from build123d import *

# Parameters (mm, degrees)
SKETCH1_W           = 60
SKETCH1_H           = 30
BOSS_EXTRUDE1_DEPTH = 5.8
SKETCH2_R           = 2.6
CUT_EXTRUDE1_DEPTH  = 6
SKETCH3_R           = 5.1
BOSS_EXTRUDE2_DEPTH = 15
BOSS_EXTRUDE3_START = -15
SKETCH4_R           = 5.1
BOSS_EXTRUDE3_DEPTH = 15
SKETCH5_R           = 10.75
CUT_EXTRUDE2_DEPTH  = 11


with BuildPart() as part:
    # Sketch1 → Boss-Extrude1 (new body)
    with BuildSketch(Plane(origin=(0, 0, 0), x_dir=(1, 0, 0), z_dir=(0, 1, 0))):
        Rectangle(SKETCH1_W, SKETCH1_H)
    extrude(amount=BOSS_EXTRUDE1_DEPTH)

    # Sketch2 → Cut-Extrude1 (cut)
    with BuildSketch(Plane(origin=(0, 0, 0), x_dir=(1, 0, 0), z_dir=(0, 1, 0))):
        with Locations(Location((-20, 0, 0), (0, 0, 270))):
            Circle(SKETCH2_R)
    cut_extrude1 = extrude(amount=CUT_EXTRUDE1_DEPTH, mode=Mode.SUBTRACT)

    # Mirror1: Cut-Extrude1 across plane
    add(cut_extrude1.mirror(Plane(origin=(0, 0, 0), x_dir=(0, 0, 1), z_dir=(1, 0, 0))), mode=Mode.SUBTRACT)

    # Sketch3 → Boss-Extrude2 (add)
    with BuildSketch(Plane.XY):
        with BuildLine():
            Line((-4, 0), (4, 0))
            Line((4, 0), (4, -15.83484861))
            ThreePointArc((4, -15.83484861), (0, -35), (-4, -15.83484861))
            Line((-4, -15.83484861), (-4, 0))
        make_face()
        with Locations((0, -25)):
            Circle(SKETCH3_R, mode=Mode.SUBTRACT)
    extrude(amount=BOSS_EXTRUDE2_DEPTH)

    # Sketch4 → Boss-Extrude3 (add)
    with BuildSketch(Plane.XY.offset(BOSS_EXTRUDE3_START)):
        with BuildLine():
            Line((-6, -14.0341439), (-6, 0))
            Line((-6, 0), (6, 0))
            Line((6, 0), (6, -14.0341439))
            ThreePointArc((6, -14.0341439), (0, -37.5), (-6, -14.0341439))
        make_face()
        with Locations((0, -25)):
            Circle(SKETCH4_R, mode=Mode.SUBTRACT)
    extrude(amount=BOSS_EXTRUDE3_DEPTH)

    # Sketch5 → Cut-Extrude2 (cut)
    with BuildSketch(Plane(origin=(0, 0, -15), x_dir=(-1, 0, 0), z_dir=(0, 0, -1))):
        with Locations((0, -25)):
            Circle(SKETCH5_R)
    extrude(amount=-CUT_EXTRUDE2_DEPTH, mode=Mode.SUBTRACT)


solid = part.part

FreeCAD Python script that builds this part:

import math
import FreeCAD as App
import Part
import Sketcher
Q = App.Units.Quantity


def add_polygon(sketch, points):
    """Adds a closed chain of lines whose ends are joined by coincident constraints."""
    first, n = sketch.GeometryCount, len(points)
    for a, b in zip(points, points[1:] + points[:1]):
        sketch.addGeometry(Part.LineSegment(App.Vector(*a, 0), App.Vector(*b, 0)), False)
    for i in range(n):
        sketch.addConstraint(Sketcher.Constraint("Coincident", first + i, 2, first + (i + 1) % n, 1))

doc = App.newDocument("Part")
body = doc.addObject("PartDesign::Body", "Body")

# Sketch on XZ plane
sketch1 = doc.addObject("Sketcher::SketchObject", "Sketch")
body.addObject(sketch1)
sketch1.AttachmentSupport = (doc.XZ_Plane, [""])
sketch1.MapMode = "FlatFace"
add_polygon(sketch1, [(-30, -15), (-30, 15), (30, 15), (30, -15)])  # lines 0-3
sketch1.addConstraint(Sketcher.Constraint("Vertical", 0))
sketch1.addConstraint(Sketcher.Constraint("Horizontal", 1))
sketch1.addConstraint(Sketcher.Constraint("Vertical", 2))
sketch1.addConstraint(Sketcher.Constraint("Horizontal", 3))
sketch1.addConstraint(Sketcher.Constraint("Symmetric", 0, 2, 2, 2, -1, 1))
sketch1.addConstraint(Sketcher.Constraint("DistanceX", 1, 1, 1, 2, Q("60 mm")))
sketch1.addConstraint(Sketcher.Constraint("DistanceY", 0, 1, 0, 2, Q("30 mm")))
pad1 = doc.addObject("PartDesign::Pad", "Pad")
body.addObject(pad1)
pad1.Profile = sketch1
pad1.Length = 5.8
pad1.Reversed = True

# Sketch on XZ plane
sketch2 = doc.addObject("Sketcher::SketchObject", "Sketch001")
body.addObject(sketch2)
sketch2.AttachmentSupport = (doc.XZ_Plane, [""])
sketch2.MapMode = "FlatFace"
sketch2.addGeometry(Part.Circle(App.Vector(-20, 0, 0), App.Vector(0, 0, 1), 2.6), False)
sketch2.addConstraint(Sketcher.Constraint("PointOnObject", 0, 3, -1))
sketch2.addConstraint(Sketcher.Constraint("Diameter", 0, Q("5.2 mm")))
sketch2.addConstraint(Sketcher.Constraint("DistanceX", 0, 3, -1, 1, Q("20 mm")))
pocket1 = doc.addObject("PartDesign::Pocket", "Pocket")
body.addObject(pocket1)
pocket1.Profile = sketch2
pocket1.Length = 6
doc.recompute()

mirrored = doc.addObject("PartDesign::Mirrored", "Mirrored")
body.addObject(mirrored)
mirrored.Originals = [pocket1]
mirrored.MirrorPlane = (doc.YZ_Plane, [""])
body.Tip = mirrored

# Sketch on XY plane
sketch3 = doc.addObject("Sketcher::SketchObject", "Sketch002")
body.addObject(sketch3)
sketch3.AttachmentSupport = (doc.XY_Plane, [""])
sketch3.MapMode = "FlatFace"
sketch3.addGeometry(Part.LineSegment(App.Vector(4, 0, 0), App.Vector(-4, 0, 0)), False)
sketch3.addGeometry(Part.LineSegment(App.Vector(-4, 0, 0), App.Vector(-4, -16, 0)), False)
sketch3.addGeometry(Part.ArcOfCircle(Part.Circle(App.Vector(0, -25, 0), App.Vector(0, 0, 1), 10), math.radians(114), math.radians(426)), False)
sketch3.addGeometry(Part.LineSegment(App.Vector(4, -16, 0), App.Vector(4, 0, 0)), False)
sketch3.addGeometry(Part.Circle(App.Vector(0, -25, 0), App.Vector(0, 0, 1), 5), False)
sketch3.addConstraint(Sketcher.Constraint("Coincident", 0, 2, 1, 1))
sketch3.addConstraint(Sketcher.Constraint("Coincident", 1, 2, 2, 1))
sketch3.addConstraint(Sketcher.Constraint("Coincident", 2, 2, 3, 1))
sketch3.addConstraint(Sketcher.Constraint("Coincident", 3, 2, 0, 1))
sketch3.addConstraint(Sketcher.Constraint("Horizontal", 0))
sketch3.addConstraint(Sketcher.Constraint("Vertical", 1))
sketch3.addConstraint(Sketcher.Constraint("Vertical", 3))
sketch3.addConstraint(Sketcher.Constraint("Coincident", 4, 3, 2, 3))
sketch3.addConstraint(Sketcher.Constraint("Symmetric", 0, 2, 3, 2, -1, 1))
sketch3.addConstraint(Sketcher.Constraint("PointOnObject", 2, 3, -2))
sketch3.addConstraint(Sketcher.Constraint("Radius", 2, Q("10 mm")))
sketch3.addConstraint(Sketcher.Constraint("Diameter", 4, Q("10.2 mm")))
sketch3.addConstraint(Sketcher.Constraint("DistanceX", 0, 2, 0, 1, Q("8 mm")))
sketch3.addConstraint(Sketcher.Constraint("DistanceY", 2, 3, -1, 1, Q("25 mm")))
pad2 = doc.addObject("PartDesign::Pad", "Pad001")
body.addObject(pad2)
pad2.Profile = sketch3
pad2.Length = 15

# Sketch on XY plane
sketch4 = doc.addObject("Sketcher::SketchObject", "Sketch003")
body.addObject(sketch4)
sketch4.AttachmentSupport = (doc.XY_Plane, [""])
sketch4.MapMode = "FlatFace"
sketch4.AttachmentOffset = App.Placement(App.Vector(0, 0, -15), App.Rotation())
sketch4.addGeometry(Part.LineSegment(App.Vector(-6, 0, 0), App.Vector(-6, -14, 0)), False)
sketch4.addGeometry(Part.ArcOfCircle(Part.Circle(App.Vector(0, -25, 0), App.Vector(0, 0, 1), 12), math.radians(119), math.radians(421)), False)
sketch4.addGeometry(Part.LineSegment(App.Vector(6, -14, 0), App.Vector(6, 0, 0)), False)
sketch4.addGeometry(Part.LineSegment(App.Vector(6, 0, 0), App.Vector(-6, 0, 0)), False)
sketch4.addGeometry(Part.Circle(App.Vector(0, -25, 0), App.Vector(0, 0, 1), 5), False)
sketch4.addConstraint(Sketcher.Constraint("Coincident", 0, 2, 1, 1))
sketch4.addConstraint(Sketcher.Constraint("Coincident", 1, 2, 2, 1))
sketch4.addConstraint(Sketcher.Constraint("Coincident", 2, 2, 3, 1))
sketch4.addConstraint(Sketcher.Constraint("Coincident", 3, 2, 0, 1))
sketch4.addConstraint(Sketcher.Constraint("Vertical", 0))
sketch4.addConstraint(Sketcher.Constraint("Vertical", 2))
sketch4.addConstraint(Sketcher.Constraint("Horizontal", 3))
sketch4.addConstraint(Sketcher.Constraint("Coincident", 4, 3, 1, 3))
sketch4.addConstraint(Sketcher.Constraint("Symmetric", 2, 2, 3, 2, -1, 1))
sketch4.addConstraint(Sketcher.Constraint("PointOnObject", 1, 3, -2))
sketch4.addConstraint(Sketcher.Constraint("Diameter", 4, Q("10.2 mm")))
sketch4.addConstraint(Sketcher.Constraint("Radius", 1, Q("12.5 mm")))
sketch4.addConstraint(Sketcher.Constraint("DistanceX", 3, 2, 3, 1, Q("12 mm")))
sketch4.addConstraint(Sketcher.Constraint("DistanceY", 1, 3, -1, 1, Q("25 mm")))
pad3 = doc.addObject("PartDesign::Pad", "Pad002")
body.addObject(pad3)
pad3.Profile = sketch4
pad3.Length = 15

# Sketch on XY plane
sketch5 = doc.addObject("Sketcher::SketchObject", "Sketch004")
body.addObject(sketch5)
sketch5.AttachmentSupport = (doc.XY_Plane, [""])
sketch5.MapMode = "FlatFace"
sketch5.AttachmentOffset = App.Placement(App.Vector(0, 0, -15), App.Rotation())
sketch5.addGeometry(Part.Circle(App.Vector(0, -25, 0), App.Vector(0, 0, 1), 11), False)
sketch5.addConstraint(Sketcher.Constraint("PointOnObject", 0, 3, -2))
sketch5.addConstraint(Sketcher.Constraint("Diameter", 0, Q("21.5 mm")))
sketch5.addConstraint(Sketcher.Constraint("DistanceY", 0, 3, -1, 1, Q("25 mm")))
pocket2 = doc.addObject("PartDesign::Pocket", "Pocket001")
body.addObject(pocket2)
pocket2.Profile = sketch5
pocket2.Length = 11
pocket2.Reversed = True

doc.recompute()
